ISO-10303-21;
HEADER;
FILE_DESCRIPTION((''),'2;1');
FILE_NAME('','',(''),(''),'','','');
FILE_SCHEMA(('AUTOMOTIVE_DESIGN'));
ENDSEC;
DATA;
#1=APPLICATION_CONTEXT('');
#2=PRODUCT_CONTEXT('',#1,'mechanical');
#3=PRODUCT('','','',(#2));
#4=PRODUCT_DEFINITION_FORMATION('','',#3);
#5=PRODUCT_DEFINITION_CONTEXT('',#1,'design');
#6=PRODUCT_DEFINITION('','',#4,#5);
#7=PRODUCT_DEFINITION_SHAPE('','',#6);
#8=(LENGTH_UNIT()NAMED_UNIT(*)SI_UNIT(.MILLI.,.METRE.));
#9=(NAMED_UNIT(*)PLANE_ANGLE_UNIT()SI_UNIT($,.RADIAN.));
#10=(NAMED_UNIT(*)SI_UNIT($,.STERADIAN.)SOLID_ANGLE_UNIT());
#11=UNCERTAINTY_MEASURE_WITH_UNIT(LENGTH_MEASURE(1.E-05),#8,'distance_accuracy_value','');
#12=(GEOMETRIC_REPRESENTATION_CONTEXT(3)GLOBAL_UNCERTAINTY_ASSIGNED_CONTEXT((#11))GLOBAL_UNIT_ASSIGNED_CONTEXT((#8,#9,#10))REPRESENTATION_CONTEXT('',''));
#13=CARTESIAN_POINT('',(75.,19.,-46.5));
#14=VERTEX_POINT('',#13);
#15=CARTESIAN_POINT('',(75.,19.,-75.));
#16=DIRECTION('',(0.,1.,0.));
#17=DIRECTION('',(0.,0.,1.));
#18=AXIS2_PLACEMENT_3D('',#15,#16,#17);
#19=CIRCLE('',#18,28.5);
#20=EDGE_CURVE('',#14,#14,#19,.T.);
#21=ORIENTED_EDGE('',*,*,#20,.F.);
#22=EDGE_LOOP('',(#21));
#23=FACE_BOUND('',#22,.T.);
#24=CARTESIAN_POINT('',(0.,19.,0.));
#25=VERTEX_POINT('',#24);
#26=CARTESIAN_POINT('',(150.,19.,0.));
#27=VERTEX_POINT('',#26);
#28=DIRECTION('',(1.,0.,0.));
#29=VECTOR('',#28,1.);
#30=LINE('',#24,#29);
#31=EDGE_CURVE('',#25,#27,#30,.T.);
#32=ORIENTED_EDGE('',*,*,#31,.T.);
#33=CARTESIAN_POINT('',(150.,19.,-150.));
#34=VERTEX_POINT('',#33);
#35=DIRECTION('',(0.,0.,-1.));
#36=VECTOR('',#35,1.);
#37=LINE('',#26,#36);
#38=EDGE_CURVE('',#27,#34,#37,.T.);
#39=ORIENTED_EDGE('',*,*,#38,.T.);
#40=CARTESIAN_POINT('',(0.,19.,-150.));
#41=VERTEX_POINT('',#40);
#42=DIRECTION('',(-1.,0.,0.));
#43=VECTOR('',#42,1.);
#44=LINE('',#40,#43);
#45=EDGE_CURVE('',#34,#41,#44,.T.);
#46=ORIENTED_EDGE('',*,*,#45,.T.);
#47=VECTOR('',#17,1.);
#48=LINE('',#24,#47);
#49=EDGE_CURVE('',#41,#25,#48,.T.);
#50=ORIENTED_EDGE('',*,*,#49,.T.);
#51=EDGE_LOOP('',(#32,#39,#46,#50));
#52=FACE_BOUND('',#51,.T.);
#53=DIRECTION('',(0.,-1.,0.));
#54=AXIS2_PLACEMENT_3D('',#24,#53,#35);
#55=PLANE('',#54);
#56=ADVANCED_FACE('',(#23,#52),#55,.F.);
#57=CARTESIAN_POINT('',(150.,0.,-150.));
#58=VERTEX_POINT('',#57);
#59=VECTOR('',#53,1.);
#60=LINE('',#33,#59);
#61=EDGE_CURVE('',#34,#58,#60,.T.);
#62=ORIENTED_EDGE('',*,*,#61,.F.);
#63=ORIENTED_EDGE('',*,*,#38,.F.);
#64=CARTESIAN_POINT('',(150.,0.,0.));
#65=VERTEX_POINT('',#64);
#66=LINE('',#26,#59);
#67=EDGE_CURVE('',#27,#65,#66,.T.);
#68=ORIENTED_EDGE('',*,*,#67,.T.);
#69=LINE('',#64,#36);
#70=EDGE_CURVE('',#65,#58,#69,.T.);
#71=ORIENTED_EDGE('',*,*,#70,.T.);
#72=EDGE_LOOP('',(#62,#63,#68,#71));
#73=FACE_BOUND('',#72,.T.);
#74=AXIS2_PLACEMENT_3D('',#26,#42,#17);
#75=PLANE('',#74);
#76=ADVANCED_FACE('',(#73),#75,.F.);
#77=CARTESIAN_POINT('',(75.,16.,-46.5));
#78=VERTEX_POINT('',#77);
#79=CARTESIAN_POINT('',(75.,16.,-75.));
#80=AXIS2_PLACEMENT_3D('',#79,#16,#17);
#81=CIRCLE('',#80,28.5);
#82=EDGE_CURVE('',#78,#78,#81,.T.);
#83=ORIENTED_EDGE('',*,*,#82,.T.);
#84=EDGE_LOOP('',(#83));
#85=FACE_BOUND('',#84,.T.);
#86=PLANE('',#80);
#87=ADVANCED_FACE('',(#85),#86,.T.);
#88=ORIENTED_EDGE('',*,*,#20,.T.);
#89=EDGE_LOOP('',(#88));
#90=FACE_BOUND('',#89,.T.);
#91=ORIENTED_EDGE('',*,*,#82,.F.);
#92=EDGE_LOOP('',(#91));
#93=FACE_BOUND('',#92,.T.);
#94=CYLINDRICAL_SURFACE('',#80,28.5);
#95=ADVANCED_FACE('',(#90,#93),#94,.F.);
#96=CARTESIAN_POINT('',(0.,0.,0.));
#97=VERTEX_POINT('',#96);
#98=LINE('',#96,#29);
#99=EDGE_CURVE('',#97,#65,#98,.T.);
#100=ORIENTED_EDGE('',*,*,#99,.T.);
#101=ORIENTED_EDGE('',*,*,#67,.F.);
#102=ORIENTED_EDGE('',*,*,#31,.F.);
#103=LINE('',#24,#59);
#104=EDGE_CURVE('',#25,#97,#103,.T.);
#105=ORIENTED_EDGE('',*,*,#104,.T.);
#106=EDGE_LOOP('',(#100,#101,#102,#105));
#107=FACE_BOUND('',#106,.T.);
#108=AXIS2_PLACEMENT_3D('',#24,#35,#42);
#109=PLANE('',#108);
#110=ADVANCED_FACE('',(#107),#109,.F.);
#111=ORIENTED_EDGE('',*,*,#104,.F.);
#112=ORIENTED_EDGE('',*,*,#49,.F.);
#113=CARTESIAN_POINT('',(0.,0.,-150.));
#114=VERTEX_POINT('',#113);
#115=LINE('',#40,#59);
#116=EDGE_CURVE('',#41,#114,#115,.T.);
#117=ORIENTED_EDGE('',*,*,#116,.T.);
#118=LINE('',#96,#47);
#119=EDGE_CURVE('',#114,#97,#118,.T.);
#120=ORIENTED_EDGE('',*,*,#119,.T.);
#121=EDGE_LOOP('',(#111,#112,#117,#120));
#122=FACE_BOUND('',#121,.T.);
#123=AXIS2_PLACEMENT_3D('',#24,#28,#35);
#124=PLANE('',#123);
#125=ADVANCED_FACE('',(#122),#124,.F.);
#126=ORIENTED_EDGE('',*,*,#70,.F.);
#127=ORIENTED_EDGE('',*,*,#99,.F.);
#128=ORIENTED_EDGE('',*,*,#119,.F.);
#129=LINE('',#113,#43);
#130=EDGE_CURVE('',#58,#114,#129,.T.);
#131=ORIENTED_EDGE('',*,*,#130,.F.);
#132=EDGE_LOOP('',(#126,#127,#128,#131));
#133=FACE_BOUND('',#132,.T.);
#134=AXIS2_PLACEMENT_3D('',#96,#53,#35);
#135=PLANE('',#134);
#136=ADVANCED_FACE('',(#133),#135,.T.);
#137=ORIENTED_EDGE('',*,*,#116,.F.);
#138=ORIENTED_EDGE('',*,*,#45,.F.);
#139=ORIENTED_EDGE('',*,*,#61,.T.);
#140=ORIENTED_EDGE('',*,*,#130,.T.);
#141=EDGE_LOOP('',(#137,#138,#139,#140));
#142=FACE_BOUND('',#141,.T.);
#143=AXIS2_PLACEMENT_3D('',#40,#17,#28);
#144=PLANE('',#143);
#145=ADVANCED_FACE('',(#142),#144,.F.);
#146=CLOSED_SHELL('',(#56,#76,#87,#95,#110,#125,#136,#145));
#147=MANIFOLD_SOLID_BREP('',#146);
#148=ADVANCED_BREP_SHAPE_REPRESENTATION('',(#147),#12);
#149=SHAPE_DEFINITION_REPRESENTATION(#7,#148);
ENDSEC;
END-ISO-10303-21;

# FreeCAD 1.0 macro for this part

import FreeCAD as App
import Part
import Sketcher
Q = App.Units.Quantity

doc = App.newDocument("Part")
body = doc.addObject("PartDesign::Body", "Body")

sketch1 = body.newObject("Sketcher::SketchObject", "Sketch")
sketch1.AttachmentSupport = (doc.getObject("XZ_Plane"), [""])
sketch1.MapMode = "FlatFace"
sketch1.addGeometry([
    Part.LineSegment(App.Vector(0, -150, 0), App.Vector(0, 0, 0)),
    Part.LineSegment(App.Vector(0, 0, 0), App.Vector(150, 0, 0)),
    Part.LineSegment(App.Vector(150, 0, 0), App.Vector(150, -150, 0)),
    Part.LineSegment(App.Vector(150, -150, 0), App.Vector(0, -150, 0)),
], False)
sketch1.addConstraint([
    Sketcher.Constraint("Coincident", 0, 2, 1, 1),
    Sketcher.Constraint("Coincident", 1, 2, 2, 1),
    Sketcher.Constraint("Coincident", 2, 2, 3, 1),
    Sketcher.Constraint("Coincident", 3, 2, 0, 1),
    Sketcher.Constraint("Vertical", 0),
    Sketcher.Constraint("Horizontal", 1),
    Sketcher.Constraint("Vertical", 2),
    Sketcher.Constraint("Horizontal", 3),
    Sketcher.Constraint("Coincident", 0, 2, -1, 1),
    Sketcher.Constraint("Equal", 3, 0),
    Sketcher.Constraint("DistanceX", 1, 1, 1, 2, Q("150 mm")),
])
pad1 = body.newObject("PartDesign::Pad", "Pad")
pad1.Profile = sketch1
pad1.Length = 19
pad1.Reversed = True

sketch2 = body.newObject("Sketcher::SketchObject", "Sketch001")
sketch2.AttachmentSupport = (doc.getObject("XZ_Plane"), [""])
sketch2.MapMode = "FlatFace"
sketch2.AttachmentOffset = App.Placement(App.Vector(0, 0, -19), App.Rotation())
sketch2.addGeometry(Part.Circle(App.Vector(75, -75, 0), App.Vector(0, 0, 1), 28), False)
sketch2.addConstraint([
    Sketcher.Constraint("Diameter", 0, Q("57 mm")),
    Sketcher.Constraint("DistanceX", -1, 1, 0, 3, Q("75 mm")),
    Sketcher.Constraint("DistanceY", 0, 3, -1, 1, Q("75 mm")),
])
pocket1 = body.newObject("PartDesign::Pocket", "Pocket")
pocket1.Profile = sketch2
pocket1.Length = 3
pocket1.Reversed = True

doc.recompute()
